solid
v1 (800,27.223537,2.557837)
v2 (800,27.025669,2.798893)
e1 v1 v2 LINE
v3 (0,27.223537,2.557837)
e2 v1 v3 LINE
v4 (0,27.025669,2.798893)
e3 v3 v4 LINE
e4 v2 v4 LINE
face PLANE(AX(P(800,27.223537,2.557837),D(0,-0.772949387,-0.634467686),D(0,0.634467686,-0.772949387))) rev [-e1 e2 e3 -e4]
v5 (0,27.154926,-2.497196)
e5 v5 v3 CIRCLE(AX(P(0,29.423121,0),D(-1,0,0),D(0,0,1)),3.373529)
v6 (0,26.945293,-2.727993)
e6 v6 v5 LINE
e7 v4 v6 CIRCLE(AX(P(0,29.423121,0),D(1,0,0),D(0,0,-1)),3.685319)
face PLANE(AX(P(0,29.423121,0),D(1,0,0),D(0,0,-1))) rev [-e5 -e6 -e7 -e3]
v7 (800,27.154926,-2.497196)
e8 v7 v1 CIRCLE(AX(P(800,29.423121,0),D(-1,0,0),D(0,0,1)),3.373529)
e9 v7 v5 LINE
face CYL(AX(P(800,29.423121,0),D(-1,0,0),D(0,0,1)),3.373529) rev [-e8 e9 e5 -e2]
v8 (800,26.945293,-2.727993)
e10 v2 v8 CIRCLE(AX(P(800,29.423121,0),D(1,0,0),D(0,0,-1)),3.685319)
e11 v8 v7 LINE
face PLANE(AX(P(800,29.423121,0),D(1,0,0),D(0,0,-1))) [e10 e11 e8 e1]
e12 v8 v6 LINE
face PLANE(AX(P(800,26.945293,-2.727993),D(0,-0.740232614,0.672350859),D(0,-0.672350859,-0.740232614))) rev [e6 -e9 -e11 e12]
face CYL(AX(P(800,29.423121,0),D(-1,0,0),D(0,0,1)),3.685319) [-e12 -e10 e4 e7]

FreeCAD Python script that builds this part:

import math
import FreeCAD as App
import Part
import Sketcher
from FreeCAD import Vector
Q = App.Units.Quantity

doc = App.newDocument("Part")
body = doc.addObject("PartDesign::Body", "Body")

# Sketch on YZ plane
sketch1 = doc.addObject("Sketcher::SketchObject", "Sketch")
body.addObject(sketch1)
sketch1.AttachmentSupport = (doc.YZ_Plane, [""])
sketch1.MapMode = "FlatFace"
sketch1.addGeometry(Part.LineSegment(Vector(26.95, -2.73, 0), Vector(27.15, -2.5, 0)), False)
sketch1.addGeometry(Part.ArcOfCircle(Part.Circle(Vector(29.42, 0, 0), Vector(0, 0, 1), 3.37), math.radians(131), math.radians(228)), False)
sketch1.addGeometry(Part.LineSegment(Vector(27.22, 2.56, 0), Vector(27.03, 2.8, 0)), False)
sketch1.addGeometry(Part.ArcOfCircle(Part.Circle(Vector(29.42, 0, 0), Vector(0, 0, 1), 3.69), math.radians(131), math.radians(228)), False)
sketch1.addConstraint(Sketcher.Constraint("Coincident", 0, 2, 1, 2))
sketch1.addConstraint(Sketcher.Constraint("Coincident", 1, 1, 2, 1))
sketch1.addConstraint(Sketcher.Constraint("Coincident", 2, 2, 3, 1))
sketch1.addConstraint(Sketcher.Constraint("Coincident", 3, 2, 0, 1))
sketch1.addConstraint(Sketcher.Constraint("Coincident", 3, 3, 1, 3))
sketch1.addConstraint(Sketcher.Constraint("PointOnObject", 1, 3, -1))
sketch1.addConstraint(Sketcher.Constraint("Radius", 1, Q("3.373529 mm")))
sketch1.addConstraint(Sketcher.Constraint("Radius", 3, Q("3.685319 mm")))
sketch1.addConstraint(Sketcher.Constraint("DistanceX", -1, 1, 1, 3, Q("29.423121 mm")))
sketch1.addConstraint(Sketcher.Constraint("DistanceX", -1, 1, 2, 2, Q("27.025669 mm")))
sketch1.addConstraint(Sketcher.Constraint("DistanceX", 0, 2, 1, 1, Q("0.068611 mm")))
sketch1.addConstraint(Sketcher.Constraint("DistanceX", 2, 2, 1, 1, Q("0.197868 mm")))
sketch1.addConstraint(Sketcher.Constraint("DistanceY", 3, 2, 1, 1, Q("5.28583 mm")))
pad1 = doc.addObject("PartDesign::Pad", "Pad")
body.addObject(pad1)
pad1.Profile = sketch1
pad1.Length = 800

doc.recompute()
